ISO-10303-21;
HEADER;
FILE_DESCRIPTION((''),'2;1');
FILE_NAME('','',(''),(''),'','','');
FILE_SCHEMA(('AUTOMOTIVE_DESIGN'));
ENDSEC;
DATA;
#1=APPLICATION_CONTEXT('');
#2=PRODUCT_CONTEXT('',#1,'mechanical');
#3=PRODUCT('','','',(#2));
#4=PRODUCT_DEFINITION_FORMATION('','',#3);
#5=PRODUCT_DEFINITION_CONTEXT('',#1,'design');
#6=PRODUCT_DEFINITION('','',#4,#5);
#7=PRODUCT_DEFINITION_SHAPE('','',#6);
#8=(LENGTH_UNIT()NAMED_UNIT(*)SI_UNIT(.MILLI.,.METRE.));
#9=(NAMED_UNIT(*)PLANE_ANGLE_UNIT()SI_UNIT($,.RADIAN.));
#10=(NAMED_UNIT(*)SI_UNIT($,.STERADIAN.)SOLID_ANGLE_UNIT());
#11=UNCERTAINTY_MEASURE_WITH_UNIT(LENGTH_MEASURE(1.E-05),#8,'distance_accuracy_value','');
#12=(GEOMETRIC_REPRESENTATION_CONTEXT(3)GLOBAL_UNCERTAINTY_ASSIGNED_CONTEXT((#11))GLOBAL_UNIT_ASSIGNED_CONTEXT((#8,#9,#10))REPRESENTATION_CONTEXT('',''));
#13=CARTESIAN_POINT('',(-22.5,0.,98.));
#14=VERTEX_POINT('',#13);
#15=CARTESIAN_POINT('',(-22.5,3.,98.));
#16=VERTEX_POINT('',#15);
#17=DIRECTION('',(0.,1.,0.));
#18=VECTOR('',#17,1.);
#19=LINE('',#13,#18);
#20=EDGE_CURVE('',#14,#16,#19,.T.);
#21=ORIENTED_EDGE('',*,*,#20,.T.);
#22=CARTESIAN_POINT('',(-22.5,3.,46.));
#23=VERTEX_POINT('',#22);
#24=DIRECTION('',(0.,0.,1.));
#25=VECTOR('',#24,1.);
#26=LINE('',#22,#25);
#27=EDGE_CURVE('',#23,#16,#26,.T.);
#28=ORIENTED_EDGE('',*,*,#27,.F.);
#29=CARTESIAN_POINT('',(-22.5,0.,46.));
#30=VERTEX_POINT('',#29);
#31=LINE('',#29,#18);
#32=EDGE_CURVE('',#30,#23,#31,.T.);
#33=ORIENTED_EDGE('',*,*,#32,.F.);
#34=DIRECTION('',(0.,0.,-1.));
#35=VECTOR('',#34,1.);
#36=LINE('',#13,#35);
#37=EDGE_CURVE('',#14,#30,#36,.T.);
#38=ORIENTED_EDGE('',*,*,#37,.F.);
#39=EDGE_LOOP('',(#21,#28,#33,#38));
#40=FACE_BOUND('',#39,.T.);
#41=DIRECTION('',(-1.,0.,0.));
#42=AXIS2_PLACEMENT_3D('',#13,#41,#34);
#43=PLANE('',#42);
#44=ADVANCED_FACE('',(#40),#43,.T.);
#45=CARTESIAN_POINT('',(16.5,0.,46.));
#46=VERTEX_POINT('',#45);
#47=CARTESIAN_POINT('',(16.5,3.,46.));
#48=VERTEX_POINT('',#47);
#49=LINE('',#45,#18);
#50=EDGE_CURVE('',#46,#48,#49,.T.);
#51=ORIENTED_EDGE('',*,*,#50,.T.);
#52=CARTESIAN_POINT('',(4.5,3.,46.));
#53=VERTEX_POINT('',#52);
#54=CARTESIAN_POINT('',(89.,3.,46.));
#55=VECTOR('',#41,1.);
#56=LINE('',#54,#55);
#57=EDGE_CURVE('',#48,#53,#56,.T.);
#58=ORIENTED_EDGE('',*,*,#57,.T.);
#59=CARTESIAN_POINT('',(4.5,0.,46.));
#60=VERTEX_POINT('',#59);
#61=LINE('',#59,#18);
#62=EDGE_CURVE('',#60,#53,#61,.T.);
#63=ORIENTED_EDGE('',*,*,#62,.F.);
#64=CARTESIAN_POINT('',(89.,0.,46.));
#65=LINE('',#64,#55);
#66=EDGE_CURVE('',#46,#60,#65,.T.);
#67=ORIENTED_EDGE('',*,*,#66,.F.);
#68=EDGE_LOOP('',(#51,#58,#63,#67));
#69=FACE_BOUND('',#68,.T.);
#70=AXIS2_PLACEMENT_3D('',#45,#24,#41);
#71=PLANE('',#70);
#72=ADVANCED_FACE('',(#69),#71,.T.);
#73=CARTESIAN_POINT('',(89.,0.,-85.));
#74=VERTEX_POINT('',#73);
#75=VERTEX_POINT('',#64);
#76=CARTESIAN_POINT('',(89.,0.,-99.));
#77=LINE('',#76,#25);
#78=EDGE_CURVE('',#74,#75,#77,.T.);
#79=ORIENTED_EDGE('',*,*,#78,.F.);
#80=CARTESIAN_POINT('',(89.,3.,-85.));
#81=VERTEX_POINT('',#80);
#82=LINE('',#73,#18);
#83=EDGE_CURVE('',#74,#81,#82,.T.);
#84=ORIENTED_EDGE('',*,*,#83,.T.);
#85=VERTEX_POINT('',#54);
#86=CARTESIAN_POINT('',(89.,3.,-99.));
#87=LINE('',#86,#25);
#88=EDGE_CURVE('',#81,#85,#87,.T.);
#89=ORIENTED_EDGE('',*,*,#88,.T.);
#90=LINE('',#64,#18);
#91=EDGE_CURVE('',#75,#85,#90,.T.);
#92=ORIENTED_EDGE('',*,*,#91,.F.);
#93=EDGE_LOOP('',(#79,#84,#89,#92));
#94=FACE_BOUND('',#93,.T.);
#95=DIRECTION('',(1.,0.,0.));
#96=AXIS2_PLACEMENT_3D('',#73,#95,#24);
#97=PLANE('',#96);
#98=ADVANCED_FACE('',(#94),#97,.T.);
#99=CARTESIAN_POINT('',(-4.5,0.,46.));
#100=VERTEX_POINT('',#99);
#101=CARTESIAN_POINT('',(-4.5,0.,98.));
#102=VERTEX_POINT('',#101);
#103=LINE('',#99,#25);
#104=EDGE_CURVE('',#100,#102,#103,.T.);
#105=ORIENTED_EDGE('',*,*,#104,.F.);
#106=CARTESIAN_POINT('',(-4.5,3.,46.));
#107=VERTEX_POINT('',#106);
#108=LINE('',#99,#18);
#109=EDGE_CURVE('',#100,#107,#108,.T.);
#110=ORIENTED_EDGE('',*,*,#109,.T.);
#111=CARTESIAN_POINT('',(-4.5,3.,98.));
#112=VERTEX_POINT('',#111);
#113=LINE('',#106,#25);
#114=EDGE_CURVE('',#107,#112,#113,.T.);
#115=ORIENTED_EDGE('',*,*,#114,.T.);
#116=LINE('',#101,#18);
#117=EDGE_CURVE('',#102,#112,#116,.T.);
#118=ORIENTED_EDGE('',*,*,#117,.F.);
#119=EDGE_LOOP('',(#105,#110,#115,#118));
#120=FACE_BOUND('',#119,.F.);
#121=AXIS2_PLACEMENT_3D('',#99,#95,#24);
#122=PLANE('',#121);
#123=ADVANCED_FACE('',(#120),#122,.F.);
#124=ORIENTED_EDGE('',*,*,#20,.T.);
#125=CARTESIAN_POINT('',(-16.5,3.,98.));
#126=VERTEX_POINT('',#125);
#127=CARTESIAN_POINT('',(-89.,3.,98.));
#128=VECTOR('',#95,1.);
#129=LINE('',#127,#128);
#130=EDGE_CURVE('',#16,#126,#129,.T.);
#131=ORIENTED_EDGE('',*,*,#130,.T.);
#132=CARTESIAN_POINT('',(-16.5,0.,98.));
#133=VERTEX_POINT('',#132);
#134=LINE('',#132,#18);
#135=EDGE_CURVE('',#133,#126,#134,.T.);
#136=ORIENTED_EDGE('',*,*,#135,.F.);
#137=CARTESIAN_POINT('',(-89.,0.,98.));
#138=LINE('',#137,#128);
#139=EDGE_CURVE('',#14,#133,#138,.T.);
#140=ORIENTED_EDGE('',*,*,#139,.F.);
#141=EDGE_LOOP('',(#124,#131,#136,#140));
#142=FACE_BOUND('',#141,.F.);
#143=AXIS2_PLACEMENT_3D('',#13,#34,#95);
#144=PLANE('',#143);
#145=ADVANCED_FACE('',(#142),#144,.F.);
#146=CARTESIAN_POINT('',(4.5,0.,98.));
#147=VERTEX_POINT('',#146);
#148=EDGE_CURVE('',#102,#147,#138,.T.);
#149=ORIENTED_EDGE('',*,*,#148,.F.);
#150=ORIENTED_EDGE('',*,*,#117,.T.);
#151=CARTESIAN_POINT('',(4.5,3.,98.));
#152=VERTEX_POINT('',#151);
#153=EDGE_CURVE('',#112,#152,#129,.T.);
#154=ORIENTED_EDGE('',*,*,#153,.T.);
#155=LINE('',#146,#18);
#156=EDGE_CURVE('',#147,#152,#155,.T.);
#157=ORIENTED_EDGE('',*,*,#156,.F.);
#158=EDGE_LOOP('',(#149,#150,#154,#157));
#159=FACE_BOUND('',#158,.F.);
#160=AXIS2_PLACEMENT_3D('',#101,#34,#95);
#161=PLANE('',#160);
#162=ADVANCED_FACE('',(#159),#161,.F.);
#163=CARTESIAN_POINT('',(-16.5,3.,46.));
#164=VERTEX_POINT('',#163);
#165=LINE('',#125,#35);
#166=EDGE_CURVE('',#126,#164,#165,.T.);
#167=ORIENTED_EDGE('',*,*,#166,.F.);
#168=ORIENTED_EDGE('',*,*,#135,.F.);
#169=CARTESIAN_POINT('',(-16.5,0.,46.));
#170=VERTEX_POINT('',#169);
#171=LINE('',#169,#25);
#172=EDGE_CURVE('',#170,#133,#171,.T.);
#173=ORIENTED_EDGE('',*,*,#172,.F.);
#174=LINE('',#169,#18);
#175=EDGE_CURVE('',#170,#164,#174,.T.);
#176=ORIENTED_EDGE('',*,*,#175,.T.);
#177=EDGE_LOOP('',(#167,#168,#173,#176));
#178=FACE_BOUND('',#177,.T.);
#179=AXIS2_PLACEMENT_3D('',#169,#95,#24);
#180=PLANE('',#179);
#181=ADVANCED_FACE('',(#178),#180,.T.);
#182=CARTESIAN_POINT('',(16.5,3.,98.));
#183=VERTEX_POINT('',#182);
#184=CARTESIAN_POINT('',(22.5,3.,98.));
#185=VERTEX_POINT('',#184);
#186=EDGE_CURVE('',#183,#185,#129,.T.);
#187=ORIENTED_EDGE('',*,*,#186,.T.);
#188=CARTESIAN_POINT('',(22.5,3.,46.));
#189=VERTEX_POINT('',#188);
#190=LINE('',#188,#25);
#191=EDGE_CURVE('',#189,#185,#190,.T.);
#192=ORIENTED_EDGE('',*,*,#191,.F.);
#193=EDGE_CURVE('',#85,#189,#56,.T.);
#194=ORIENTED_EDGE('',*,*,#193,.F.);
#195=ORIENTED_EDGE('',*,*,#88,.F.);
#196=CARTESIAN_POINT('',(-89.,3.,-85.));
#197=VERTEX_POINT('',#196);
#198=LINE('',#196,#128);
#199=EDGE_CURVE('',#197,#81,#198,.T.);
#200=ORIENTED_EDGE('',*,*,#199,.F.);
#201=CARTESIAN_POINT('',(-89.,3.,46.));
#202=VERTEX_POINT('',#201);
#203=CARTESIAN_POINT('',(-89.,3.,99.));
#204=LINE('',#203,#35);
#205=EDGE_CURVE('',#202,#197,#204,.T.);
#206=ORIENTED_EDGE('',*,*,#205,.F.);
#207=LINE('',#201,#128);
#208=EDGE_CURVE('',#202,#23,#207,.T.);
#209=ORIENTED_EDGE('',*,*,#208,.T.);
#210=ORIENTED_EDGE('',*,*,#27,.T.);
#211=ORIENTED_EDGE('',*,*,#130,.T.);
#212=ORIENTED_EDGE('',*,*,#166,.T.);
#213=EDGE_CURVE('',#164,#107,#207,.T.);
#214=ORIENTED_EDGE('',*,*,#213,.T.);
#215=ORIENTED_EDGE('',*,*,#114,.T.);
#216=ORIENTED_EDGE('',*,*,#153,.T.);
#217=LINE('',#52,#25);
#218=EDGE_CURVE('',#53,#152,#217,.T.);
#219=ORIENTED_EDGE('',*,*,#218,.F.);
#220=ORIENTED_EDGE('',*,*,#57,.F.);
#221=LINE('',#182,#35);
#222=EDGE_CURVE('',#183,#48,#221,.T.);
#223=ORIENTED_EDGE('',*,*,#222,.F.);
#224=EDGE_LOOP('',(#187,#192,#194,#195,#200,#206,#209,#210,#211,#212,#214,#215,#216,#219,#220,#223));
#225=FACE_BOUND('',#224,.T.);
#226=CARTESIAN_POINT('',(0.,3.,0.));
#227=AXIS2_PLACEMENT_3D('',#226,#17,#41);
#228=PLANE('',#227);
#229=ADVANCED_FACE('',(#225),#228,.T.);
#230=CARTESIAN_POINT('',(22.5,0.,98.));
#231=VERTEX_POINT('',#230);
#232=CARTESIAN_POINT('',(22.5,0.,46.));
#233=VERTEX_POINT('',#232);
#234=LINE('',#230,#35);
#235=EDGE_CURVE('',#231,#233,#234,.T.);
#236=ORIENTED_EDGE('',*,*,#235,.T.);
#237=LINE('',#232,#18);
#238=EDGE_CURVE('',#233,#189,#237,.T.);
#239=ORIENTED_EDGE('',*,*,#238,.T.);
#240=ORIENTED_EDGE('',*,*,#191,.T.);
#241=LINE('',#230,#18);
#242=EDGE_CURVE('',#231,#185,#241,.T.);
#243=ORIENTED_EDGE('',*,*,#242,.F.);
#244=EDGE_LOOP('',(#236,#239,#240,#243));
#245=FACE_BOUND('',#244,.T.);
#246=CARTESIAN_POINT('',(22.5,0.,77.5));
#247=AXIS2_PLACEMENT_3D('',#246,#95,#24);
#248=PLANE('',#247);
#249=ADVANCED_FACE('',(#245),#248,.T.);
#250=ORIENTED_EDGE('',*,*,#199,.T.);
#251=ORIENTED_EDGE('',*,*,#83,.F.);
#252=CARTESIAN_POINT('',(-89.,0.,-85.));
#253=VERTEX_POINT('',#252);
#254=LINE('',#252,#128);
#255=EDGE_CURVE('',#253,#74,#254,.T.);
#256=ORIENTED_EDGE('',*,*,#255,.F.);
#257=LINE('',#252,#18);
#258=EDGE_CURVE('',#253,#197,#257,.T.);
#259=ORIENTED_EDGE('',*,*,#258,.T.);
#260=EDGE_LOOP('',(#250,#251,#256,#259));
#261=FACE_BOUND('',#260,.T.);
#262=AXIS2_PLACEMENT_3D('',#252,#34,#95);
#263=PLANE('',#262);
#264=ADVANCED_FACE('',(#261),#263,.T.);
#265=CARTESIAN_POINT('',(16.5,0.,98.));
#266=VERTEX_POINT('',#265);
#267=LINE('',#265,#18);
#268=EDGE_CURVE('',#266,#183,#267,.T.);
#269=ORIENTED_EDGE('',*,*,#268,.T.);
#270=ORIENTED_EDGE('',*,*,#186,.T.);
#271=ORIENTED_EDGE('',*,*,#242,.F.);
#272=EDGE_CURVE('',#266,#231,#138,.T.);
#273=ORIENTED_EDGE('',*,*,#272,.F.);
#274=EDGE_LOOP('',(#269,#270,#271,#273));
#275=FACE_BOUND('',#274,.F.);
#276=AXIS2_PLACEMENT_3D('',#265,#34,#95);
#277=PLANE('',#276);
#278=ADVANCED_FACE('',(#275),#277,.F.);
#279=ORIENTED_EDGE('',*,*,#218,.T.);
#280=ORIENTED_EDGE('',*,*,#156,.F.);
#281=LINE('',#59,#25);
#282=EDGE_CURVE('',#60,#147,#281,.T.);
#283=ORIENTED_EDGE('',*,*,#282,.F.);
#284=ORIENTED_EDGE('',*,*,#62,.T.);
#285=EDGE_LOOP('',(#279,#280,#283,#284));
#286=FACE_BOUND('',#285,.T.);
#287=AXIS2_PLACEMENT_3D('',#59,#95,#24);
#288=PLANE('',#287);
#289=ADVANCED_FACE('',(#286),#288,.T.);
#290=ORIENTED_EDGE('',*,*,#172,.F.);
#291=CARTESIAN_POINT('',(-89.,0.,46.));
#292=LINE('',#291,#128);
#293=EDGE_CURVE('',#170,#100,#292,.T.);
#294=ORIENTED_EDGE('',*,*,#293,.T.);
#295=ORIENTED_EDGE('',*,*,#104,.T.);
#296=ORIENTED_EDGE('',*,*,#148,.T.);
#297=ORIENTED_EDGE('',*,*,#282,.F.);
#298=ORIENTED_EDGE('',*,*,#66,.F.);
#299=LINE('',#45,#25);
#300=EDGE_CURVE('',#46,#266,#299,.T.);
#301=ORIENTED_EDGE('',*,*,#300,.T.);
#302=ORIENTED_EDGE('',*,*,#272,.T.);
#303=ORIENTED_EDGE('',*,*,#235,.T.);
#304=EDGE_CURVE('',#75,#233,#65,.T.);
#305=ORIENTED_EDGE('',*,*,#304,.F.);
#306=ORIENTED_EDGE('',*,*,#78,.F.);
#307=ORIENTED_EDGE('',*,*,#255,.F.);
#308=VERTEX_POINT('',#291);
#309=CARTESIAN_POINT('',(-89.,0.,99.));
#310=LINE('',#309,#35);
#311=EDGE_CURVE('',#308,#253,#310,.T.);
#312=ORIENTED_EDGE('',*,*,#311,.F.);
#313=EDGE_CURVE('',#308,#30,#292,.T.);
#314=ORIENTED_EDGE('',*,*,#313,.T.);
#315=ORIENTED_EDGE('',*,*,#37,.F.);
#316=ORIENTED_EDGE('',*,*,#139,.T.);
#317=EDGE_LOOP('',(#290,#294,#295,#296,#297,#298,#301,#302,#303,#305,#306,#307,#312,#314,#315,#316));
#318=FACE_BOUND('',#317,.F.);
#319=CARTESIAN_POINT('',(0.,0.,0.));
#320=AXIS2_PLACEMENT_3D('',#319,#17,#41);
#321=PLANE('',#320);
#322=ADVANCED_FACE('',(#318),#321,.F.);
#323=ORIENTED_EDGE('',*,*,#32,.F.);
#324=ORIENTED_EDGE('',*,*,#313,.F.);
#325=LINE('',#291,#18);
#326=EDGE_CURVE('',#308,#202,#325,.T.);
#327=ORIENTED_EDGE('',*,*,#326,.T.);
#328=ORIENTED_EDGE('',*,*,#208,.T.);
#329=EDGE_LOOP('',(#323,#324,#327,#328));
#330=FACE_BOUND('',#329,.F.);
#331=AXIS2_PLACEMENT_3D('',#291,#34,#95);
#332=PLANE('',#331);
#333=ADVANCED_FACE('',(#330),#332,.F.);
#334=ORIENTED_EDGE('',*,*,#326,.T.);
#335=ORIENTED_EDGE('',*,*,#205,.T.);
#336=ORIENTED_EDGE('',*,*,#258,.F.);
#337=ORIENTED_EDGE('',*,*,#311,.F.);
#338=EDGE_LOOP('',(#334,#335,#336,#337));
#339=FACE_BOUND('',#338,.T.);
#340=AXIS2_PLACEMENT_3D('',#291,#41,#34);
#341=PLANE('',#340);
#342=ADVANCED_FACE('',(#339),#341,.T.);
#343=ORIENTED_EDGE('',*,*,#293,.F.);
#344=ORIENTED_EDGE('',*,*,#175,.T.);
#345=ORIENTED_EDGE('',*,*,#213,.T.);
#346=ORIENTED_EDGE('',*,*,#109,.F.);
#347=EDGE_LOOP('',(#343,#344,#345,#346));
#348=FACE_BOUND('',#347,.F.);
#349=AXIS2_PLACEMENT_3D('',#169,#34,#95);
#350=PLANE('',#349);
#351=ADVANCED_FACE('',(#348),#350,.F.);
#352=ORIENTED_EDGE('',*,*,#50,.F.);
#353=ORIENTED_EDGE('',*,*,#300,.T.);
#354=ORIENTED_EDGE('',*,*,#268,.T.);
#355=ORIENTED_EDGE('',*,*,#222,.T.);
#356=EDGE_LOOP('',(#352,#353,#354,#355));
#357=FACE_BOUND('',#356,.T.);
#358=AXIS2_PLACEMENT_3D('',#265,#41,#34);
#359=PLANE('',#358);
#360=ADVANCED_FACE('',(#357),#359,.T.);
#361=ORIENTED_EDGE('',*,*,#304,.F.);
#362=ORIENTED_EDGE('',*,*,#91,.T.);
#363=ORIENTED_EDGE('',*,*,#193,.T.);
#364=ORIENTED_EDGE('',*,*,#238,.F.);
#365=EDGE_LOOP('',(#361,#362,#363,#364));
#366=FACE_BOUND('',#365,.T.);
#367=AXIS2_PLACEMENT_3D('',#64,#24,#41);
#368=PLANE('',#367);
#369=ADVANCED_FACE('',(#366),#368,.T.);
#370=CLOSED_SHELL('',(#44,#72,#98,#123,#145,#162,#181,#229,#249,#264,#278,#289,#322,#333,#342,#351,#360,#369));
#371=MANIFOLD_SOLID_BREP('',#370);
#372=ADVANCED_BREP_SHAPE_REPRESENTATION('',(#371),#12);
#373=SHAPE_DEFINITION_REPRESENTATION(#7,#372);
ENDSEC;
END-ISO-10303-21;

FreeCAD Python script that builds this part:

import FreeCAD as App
import Part
import Sketcher
from FreeCAD import Vector
Q = App.Units.Quantity


def add_polygon(sketch, points):
    """Adds a closed chain of lines whose ends are joined by coincident constraints."""
    first, n = sketch.GeometryCount, len(points)
    for a, b in zip(points, points[1:] + points[:1]):
        sketch.addGeometry(Part.LineSegment(App.Vector(*a, 0), App.Vector(*b, 0)), False)
    for i in range(n):
        sketch.addConstraint(Sketcher.Constraint("Coincident", first + i, 2, first + (i + 1) % n, 1))

doc = App.newDocument("Part")
body = doc.addObject("PartDesign::Body", "Body")

# Sketch on XZ plane
sketch1 = body.newObject("Sketcher::SketchObject", "Sketch")
sketch1.AttachmentSupport = (doc.getObject("XZ_Plane"), [""])
sketch1.MapMode = "FlatFace"
add_polygon(sketch1, [(16, 98), (22, 98), (22, 46), (89, 46), (89, -85), (-89, -85), (-89, 46), (-22, 46), (-22, 98), (-16, 98), (-16, 46), (-4, 46), (-4, 98), (4, 98), (4, 46), (16, 46)])  # lines 0-15
sketch1.addConstraint([
    Sketcher.Constraint("Horizontal", 0),
    Sketcher.Constraint("Vertical", 1),
    Sketcher.Constraint("Horizontal", 2),
    Sketcher.Constraint("Vertical", 3),
    Sketcher.Constraint("Horizontal", 4),
    Sketcher.Constraint("Vertical", 5),
    Sketcher.Constraint("Horizontal", 6),
    Sketcher.Constraint("Vertical", 7),
    Sketcher.Constraint("Horizontal", 8),
    Sketcher.Constraint("Vertical", 9),
    Sketcher.Constraint("Horizontal", 10),
    Sketcher.Constraint("Vertical", 11),
    Sketcher.Constraint("Horizontal", 12),
    Sketcher.Constraint("Vertical", 13),
    Sketcher.Constraint("Horizontal", 14),
    Sketcher.Constraint("Vertical", 15),
    Sketcher.Constraint("Symmetric", 2, 2, 5, 2, -2),
    Sketcher.Constraint("Symmetric", 0, 2, 7, 2, -2),
    Sketcher.Constraint("Symmetric", 10, 2, 13, 2, -2),
    Sketcher.Constraint("Horizontal", 6, 2, 9, 2),
    Sketcher.Constraint("Horizontal", 8, 2, 11, 2),
    Sketcher.Constraint("Equal", 0, 8),
    Sketcher.Constraint("DistanceX", 4, 2, 4, 1, Q("178 mm")),
    Sketcher.Constraint("DistanceX", 12, 1, 12, 2, Q("9 mm")),
    Sketcher.Constraint("DistanceX", 0, 1, 0, 2, Q("6 mm")),
    Sketcher.Constraint("DistanceX", 10, 1, 10, 2, Q("12 mm")),
    Sketcher.Constraint("DistanceY", 1, 2, 1, 1, Q("52 mm")),
    Sketcher.Constraint("DistanceY", 3, 2, 3, 1, Q("131 mm")),
    Sketcher.Constraint("DistanceY", -1, 1, 0, 2, Q("98 mm")),
])
pad1 = body.newObject("PartDesign::Pad", "Pad")
pad1.Profile = sketch1
pad1.Length = 3
pad1.Reversed = True

doc.recompute()
